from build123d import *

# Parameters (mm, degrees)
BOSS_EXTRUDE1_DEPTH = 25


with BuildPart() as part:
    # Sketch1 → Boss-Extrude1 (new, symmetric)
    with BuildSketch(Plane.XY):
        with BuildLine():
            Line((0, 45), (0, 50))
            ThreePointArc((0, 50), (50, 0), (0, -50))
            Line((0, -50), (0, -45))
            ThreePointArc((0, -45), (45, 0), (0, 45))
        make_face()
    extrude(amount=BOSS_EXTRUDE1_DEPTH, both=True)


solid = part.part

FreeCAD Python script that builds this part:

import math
import FreeCAD as App
import Part
import Sketcher
from FreeCAD import Vector
Q = App.Units.Quantity

doc = App.newDocument("Part")
body = doc.addObject("PartDesign::Body", "Body")

sketch1 = body.newObject("Sketcher::SketchObject", "Sketch")
sketch1.AttachmentSupport = (doc.getObject("XY_Plane"), [""])
sketch1.MapMode = "FlatFace"
sketch1.addGeometry([
    Part.LineSegment(Vector(0, 50, 0), Vector(0, 45, 0)),
    Part.ArcOfCircle(Part.Circle(Vector(0, 0, 0), Vector(0, 0, 1), 45), math.radians(-90), math.radians(90)),
    Part.LineSegment(Vector(0, -45, 0), Vector(0, -50, 0)),
    Part.ArcOfCircle(Part.Circle(Vector(0, 0, 0), Vector(0, 0, 1), 50), math.radians(-90), math.radians(90)),
], False)
sketch1.addConstraint([
    Sketcher.Constraint("Coincident", 0, 2, 1, 2),
    Sketcher.Constraint("Coincident", 1, 1, 2, 1),
    Sketcher.Constraint("Coincident", 2, 2, 3, 1),
    Sketcher.Constraint("Coincident", 3, 2, 0, 1),
    Sketcher.Constraint("Vertical", 0),
    Sketcher.Constraint("Vertical", 2),
    Sketcher.Constraint("Coincident", 1, 3, -1, 1),
    Sketcher.Constraint("Coincident", 3, 3, -1, 1),
    Sketcher.Constraint("PointOnObject", 0, 2, -2),
    Sketcher.Constraint("PointOnObject", 1, 1, -2),
    Sketcher.Constraint("Radius", 1, Q("45 mm")),
    Sketcher.Constraint("Radius", 3, Q("50 mm")),
])
pad1 = body.newObject("PartDesign::Pad", "Pad")
pad1.Profile = sketch1
pad1.Length = 50
pad1.Midplane = True

doc.recompute()
